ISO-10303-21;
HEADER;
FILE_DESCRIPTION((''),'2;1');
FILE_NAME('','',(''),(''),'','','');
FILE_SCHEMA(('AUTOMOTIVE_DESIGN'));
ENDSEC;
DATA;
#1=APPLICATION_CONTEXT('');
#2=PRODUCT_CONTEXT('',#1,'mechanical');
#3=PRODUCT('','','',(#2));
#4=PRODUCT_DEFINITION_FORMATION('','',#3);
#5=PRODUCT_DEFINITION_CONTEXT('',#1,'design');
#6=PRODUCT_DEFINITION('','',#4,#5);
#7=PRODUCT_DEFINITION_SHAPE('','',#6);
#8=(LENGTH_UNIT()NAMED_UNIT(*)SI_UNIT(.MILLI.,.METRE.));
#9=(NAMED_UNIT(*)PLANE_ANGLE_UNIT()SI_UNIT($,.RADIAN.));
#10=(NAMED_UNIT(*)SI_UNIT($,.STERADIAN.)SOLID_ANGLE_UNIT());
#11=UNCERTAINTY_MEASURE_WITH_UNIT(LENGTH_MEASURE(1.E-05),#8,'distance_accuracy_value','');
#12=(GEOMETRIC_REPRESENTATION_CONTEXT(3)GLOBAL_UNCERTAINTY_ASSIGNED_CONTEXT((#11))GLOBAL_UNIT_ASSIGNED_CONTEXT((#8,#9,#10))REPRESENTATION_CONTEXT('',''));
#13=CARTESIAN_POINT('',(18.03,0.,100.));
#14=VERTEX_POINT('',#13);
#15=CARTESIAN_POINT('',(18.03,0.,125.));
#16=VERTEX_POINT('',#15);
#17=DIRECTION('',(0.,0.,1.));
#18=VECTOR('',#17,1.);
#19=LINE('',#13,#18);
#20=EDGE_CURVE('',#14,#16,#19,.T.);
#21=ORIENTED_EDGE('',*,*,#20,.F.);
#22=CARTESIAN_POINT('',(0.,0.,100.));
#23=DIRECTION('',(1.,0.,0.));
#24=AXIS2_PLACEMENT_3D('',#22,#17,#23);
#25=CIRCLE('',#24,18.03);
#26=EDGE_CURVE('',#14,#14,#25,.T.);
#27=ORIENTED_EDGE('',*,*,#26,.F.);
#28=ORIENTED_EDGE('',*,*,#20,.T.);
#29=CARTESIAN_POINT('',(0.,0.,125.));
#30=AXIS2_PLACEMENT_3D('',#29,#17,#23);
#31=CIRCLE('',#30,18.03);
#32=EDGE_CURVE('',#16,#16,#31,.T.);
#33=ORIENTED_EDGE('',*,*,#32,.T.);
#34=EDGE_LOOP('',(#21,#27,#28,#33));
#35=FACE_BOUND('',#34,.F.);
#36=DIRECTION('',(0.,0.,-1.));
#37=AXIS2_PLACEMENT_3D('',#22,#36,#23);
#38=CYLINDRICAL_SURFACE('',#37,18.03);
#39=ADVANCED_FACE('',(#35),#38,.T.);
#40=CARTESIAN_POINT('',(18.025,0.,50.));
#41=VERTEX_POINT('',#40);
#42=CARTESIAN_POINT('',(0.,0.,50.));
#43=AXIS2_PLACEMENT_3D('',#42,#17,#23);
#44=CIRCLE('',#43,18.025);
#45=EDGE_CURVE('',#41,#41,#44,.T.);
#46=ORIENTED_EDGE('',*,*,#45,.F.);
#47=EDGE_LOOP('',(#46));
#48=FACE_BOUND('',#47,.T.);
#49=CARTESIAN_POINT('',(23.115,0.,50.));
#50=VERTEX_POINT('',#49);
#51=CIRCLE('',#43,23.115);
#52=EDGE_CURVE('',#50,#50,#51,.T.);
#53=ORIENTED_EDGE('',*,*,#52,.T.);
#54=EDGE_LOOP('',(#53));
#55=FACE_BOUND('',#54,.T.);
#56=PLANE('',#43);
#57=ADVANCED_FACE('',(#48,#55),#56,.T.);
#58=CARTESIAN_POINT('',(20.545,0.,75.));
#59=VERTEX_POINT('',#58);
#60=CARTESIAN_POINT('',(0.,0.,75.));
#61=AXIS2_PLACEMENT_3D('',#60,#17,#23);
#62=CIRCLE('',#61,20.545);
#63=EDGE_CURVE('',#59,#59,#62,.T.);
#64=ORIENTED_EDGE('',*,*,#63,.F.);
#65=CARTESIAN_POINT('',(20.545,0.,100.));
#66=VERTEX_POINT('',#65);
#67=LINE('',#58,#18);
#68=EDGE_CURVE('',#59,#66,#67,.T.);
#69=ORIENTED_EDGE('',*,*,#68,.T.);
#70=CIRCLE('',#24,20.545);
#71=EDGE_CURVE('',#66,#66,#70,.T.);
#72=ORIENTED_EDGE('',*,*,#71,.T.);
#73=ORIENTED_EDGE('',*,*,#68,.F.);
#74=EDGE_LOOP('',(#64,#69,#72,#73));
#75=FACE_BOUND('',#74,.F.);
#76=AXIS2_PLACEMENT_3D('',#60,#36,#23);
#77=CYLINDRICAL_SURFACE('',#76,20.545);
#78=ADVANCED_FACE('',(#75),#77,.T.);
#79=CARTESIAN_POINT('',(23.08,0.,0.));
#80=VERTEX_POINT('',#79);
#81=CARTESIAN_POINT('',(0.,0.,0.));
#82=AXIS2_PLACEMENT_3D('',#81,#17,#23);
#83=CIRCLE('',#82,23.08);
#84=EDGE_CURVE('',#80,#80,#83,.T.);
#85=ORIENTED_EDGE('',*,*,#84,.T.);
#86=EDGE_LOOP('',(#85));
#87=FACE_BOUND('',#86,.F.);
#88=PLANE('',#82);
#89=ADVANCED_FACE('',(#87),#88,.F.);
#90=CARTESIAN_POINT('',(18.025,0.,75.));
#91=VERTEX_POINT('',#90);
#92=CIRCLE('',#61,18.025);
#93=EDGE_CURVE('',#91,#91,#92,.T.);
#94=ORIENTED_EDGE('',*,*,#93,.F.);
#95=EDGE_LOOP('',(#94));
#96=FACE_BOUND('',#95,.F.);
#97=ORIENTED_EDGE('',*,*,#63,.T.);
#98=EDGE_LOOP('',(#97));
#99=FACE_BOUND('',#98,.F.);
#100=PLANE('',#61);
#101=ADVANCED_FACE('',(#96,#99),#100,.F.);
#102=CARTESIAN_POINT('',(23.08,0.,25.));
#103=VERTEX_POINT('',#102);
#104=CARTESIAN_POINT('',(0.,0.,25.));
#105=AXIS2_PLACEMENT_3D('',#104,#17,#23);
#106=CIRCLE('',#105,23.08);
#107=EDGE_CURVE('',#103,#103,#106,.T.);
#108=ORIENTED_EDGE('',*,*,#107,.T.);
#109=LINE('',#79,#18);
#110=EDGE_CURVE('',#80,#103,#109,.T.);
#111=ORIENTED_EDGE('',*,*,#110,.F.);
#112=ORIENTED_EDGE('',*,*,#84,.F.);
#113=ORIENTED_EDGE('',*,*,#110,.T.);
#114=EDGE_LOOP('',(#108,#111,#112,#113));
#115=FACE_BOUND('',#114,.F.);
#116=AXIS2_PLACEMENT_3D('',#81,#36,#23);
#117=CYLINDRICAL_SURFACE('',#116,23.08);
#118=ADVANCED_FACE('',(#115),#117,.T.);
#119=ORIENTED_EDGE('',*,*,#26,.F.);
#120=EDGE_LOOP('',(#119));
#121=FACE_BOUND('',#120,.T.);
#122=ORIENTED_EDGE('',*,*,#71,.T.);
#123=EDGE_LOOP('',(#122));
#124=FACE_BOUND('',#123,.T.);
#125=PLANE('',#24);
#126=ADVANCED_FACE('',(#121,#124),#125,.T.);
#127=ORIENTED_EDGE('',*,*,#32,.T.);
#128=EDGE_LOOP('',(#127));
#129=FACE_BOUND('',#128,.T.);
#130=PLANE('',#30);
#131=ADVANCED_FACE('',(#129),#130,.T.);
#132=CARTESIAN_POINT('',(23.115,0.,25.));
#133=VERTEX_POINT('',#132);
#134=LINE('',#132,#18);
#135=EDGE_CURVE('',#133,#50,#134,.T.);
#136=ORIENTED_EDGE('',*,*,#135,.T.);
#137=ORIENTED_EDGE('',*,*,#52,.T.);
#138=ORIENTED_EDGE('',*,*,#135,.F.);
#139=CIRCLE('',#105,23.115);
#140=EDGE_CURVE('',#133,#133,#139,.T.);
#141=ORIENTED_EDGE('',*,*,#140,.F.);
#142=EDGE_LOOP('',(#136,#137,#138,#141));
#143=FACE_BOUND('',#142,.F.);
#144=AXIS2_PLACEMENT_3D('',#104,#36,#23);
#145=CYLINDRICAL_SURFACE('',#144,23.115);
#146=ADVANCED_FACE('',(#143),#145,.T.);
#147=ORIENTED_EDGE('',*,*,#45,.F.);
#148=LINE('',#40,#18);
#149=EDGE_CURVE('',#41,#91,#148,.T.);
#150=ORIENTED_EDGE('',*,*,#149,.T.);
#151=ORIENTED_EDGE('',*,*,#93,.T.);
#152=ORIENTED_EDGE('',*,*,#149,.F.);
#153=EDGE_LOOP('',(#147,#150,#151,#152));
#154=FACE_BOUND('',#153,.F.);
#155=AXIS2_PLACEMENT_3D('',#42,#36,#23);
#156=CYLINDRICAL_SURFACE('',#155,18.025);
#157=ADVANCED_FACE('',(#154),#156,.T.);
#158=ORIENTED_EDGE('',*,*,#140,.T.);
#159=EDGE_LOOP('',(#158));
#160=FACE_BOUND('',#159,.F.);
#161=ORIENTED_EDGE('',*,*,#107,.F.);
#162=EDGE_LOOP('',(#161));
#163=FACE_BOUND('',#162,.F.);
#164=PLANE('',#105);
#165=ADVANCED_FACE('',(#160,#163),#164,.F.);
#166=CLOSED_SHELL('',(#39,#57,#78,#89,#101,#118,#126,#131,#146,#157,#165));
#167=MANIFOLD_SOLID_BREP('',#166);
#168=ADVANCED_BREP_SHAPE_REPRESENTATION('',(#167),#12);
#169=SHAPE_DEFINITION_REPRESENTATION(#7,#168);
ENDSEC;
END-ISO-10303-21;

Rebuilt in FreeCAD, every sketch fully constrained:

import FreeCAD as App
import Part
import Sketcher
Q = App.Units.Quantity

doc = App.newDocument("Part")
body = doc.addObject("PartDesign::Body", "Body")

# Sketch on XY plane
sketch1 = doc.addObject("Sketcher::SketchObject", "Sketch")
body.addObject(sketch1)
sketch1.AttachmentSupport = (doc.XY_Plane, [""])
sketch1.MapMode = "FlatFace"
sketch1.addGeometry(Part.Circle(App.Vector(0, 0, 0), App.Vector(0, 0, 1), 23), False)
sketch1.addConstraint([
    Sketcher.Constraint("Coincident", 0, 3, -1, 1),
    Sketcher.Constraint("Diameter", 0, Q("46.16 mm")),
])
pad1 = doc.addObject("PartDesign::Pad", "Pad")
body.addObject(pad1)
pad1.Profile = sketch1
pad1.Length = 25

# Sketch on XY plane
sketch2 = doc.addObject("Sketcher::SketchObject", "Sketch001")
body.addObject(sketch2)
sketch2.AttachmentSupport = (doc.XY_Plane, [""])
sketch2.MapMode = "FlatFace"
sketch2.AttachmentOffset = App.Placement(App.Vector(0, 0, 25), App.Rotation())
sketch2.addGeometry(Part.Circle(App.Vector(0, 0, 0), App.Vector(0, 0, 1), 23), False)
sketch2.addConstraint([
    Sketcher.Constraint("Coincident", 0, 3, -1, 1),
    Sketcher.Constraint("Diameter", 0, Q("46.23 mm")),
])
pad2 = doc.addObject("PartDesign::Pad", "Pad001")
body.addObject(pad2)
pad2.Profile = sketch2
pad2.Length = 25

# Sketch on XY plane
sketch3 = doc.addObject("Sketcher::SketchObject", "Sketch002")
body.addObject(sketch3)
sketch3.AttachmentSupport = (doc.XY_Plane, [""])
sketch3.MapMode = "FlatFace"
sketch3.AttachmentOffset = App.Placement(App.Vector(0, 0, 50), App.Rotation())
sketch3.addGeometry(Part.Circle(App.Vector(0, 0, 0), App.Vector(0, 0, 1), 18), False)
sketch3.addConstraint([
    Sketcher.Constraint("Coincident", 0, 3, -1, 1),
    Sketcher.Constraint("Diameter", 0, Q("36.05 mm")),
])
pad3 = doc.addObject("PartDesign::Pad", "Pad002")
body.addObject(pad3)
pad3.Profile = sketch3
pad3.Length = 25

# Sketch on XY plane
sketch4 = doc.addObject("Sketcher::SketchObject", "Sketch003")
body.addObject(sketch4)
sketch4.AttachmentSupport = (doc.XY_Plane, [""])
sketch4.MapMode = "FlatFace"
sketch4.AttachmentOffset = App.Placement(App.Vector(0, 0, 75), App.Rotation())
sketch4.addGeometry(Part.Circle(App.Vector(0, 0, 0), App.Vector(0, 0, 1), 21), False)
sketch4.addConstraint([
    Sketcher.Constraint("Coincident", 0, 3, -1, 1),
    Sketcher.Constraint("Diameter", 0, Q("41.09 mm")),
])
pad4 = doc.addObject("PartDesign::Pad", "Pad003")
body.addObject(pad4)
pad4.Profile = sketch4
pad4.Length = 25

# Sketch on XY plane
sketch5 = doc.addObject("Sketcher::SketchObject", "Sketch004")
body.addObject(sketch5)
sketch5.AttachmentSupport = (doc.XY_Plane, [""])
sketch5.MapMode = "FlatFace"
sketch5.AttachmentOffset = App.Placement(App.Vector(0, 0, 100), App.Rotation())
sketch5.addGeometry(Part.Circle(App.Vector(0, 0, 0), App.Vector(0, 0, 1), 18), False)
sketch5.addConstraint([
    Sketcher.Constraint("Coincident", 0, 3, -1, 1),
    Sketcher.Constraint("Diameter", 0, Q("36.06 mm")),
])
pad5 = doc.addObject("PartDesign::Pad", "Pad004")
body.addObject(pad5)
pad5.Profile = sketch5
pad5.Length = 25

doc.recompute()
